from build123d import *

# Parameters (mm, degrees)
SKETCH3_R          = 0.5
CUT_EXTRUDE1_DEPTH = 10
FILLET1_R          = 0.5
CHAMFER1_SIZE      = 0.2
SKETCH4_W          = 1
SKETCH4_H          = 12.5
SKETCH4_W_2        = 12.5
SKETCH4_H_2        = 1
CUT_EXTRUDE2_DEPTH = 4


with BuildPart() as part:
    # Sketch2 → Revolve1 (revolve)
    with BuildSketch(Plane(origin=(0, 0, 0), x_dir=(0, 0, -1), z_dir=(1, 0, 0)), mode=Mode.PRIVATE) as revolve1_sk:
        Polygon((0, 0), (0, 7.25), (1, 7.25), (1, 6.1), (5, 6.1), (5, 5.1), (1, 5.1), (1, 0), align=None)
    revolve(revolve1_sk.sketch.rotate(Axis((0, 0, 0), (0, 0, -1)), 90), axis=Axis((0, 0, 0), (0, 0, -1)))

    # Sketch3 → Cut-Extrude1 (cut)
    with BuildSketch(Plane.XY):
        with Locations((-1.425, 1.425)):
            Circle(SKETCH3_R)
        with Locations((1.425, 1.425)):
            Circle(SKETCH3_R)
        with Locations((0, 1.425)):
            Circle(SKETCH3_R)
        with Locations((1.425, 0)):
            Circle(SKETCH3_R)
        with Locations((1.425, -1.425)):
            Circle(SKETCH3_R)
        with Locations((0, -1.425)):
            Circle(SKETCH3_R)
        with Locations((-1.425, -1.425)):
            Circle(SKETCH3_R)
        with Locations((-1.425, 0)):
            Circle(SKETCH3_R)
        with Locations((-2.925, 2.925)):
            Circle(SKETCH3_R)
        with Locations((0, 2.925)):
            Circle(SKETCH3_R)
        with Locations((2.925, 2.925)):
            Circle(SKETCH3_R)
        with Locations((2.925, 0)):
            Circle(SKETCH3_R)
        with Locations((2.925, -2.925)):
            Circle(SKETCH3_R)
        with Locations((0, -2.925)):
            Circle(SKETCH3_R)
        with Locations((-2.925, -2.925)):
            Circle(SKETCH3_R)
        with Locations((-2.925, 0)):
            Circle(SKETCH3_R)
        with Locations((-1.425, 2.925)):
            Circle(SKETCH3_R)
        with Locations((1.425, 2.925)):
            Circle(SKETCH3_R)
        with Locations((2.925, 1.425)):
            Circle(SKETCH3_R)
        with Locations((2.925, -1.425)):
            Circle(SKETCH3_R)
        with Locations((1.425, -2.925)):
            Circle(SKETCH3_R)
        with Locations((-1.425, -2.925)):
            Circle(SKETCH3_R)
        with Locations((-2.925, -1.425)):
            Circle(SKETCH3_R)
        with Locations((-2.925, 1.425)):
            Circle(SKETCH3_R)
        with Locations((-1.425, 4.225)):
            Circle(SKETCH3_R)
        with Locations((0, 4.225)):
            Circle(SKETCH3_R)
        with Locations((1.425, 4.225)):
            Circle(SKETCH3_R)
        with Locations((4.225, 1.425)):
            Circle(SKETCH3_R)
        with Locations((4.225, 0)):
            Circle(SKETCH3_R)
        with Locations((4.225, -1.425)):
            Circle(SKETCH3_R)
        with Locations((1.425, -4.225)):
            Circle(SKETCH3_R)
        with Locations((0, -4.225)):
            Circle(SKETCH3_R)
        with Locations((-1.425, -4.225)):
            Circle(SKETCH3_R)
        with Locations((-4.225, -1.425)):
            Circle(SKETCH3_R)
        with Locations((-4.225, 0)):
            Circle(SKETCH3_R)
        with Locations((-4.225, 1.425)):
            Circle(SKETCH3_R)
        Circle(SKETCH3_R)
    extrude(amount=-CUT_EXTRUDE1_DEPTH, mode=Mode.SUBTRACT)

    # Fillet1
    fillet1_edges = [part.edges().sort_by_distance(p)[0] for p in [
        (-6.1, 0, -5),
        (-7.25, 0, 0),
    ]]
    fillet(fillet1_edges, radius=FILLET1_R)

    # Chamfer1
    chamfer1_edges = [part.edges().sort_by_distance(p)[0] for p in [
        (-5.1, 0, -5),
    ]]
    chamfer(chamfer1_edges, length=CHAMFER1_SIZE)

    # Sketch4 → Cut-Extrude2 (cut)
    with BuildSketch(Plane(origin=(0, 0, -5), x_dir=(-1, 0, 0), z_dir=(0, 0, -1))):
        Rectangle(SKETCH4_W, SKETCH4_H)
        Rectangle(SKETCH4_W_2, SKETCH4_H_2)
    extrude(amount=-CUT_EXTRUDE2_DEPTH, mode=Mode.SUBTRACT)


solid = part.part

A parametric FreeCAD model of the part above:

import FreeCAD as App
import Part
import Sketcher
from FreeCAD import Vector


def edges_at(feature, points):
    """Names of the edges that pass closest to the given points."""
    edges = feature.Shape.Edges
    near = lambda p: min(range(len(edges)), key=lambda i: edges[i].distToShape(Part.Vertex(*p))[0])
    return sorted({f"Edge{near(p) + 1}" for p in points})


def add_polygon(sketch, points):
    """Adds a closed chain of lines whose ends are joined by coincident constraints."""
    first, n = sketch.GeometryCount, len(points)
    for a, b in zip(points, points[1:] + points[:1]):
        sketch.addGeometry(Part.LineSegment(App.Vector(*a, 0), App.Vector(*b, 0)), False)
    for i in range(n):
        sketch.addConstraint(Sketcher.Constraint("Coincident", first + i, 2, first + (i + 1) % n, 1))

doc = App.newDocument("Part")
params = doc.addObject("Spreadsheet::Sheet", "Params")
for row, (alias, value) in enumerate([
    ("sketch1_width", "1 mm"),
    ("sketch1_height", "4 mm"),
    ("sketch1_width2", "5.1 mm"),
    ("sketch1_width3", "7.25 mm"),
    ("revolution_angle", "360 deg"),
    ("sketch2_diameter", "1 mm"),
    ("pocket1_length", "10 mm"),
    ("fillet_radius", "0.5 mm"),
    ("chamfer_size", "0.2 mm"),
    ("sketch3_width", "1 mm"),
    ("sketch3_width2", "5.75 mm"),
    ("pocket2_length", "4 mm"),
], start=1):
    params.set(f"A{row}", alias)
    params.set(f"B{row}", "=" + value)
    params.setAlias(f"B{row}", alias)

body = doc.addObject("PartDesign::Body", "Body")

sketch1 = doc.addObject("Sketcher::SketchObject", "Sketch")
body.addObject(sketch1)
sketch1.AttachmentSupport = (doc.YZ_Plane, [""])
sketch1.MapMode = "FlatFace"
add_polygon(sketch1, [(7.25, 0), (0, 0), (0, -1), (5.1, -1), (5.1, -5), (6.1, -5), (6.1, -1), (7.25, -1)])
sketch1.addConstraint([
    Sketcher.Constraint("Horizontal", 0),
    Sketcher.Constraint("Vertical", 1),
    Sketcher.Constraint("Horizontal", 2),
    Sketcher.Constraint("Vertical", 3),
    Sketcher.Constraint("Horizontal", 4),
    Sketcher.Constraint("Vertical", 5),
    Sketcher.Constraint("Horizontal", 6),
    Sketcher.Constraint("Vertical", 7),
    Sketcher.Constraint("Coincident", 0, 2, -1, 1),
    Sketcher.Constraint("Horizontal", 2, 2, 5, 2),
    Sketcher.Constraint("Equal", 4, 1),
    Sketcher.Constraint("DistanceX", 4, 1, 4, 2, 1.0),
    Sketcher.Constraint("DistanceY", 3, 2, 3, 1, 4.0),
    Sketcher.Constraint("DistanceX", 2, 1, 2, 2, 5.1),
    Sketcher.Constraint("DistanceX", 0, 2, 0, 1, 7.25),
])
sketch1.setExpression("Constraints[19]", "Params.sketch1_width")
sketch1.setExpression("Constraints[20]", "Params.sketch1_height")
sketch1.setExpression("Constraints[21]", "Params.sketch1_width2")
sketch1.setExpression("Constraints[22]", "Params.sketch1_width3")
revolution = doc.addObject("PartDesign::Revolution", "Revolution")
body.addObject(revolution)
revolution.Profile = sketch1
revolution.ReferenceAxis = (sketch1, ["V_Axis"])
revolution.setExpression("Angle", "Params.revolution_angle")

sketch2 = doc.addObject("Sketcher::SketchObject", "Sketch001")
body.addObject(sketch2)
sketch2.AttachmentSupport = (doc.XY_Plane, [""])
sketch2.MapMode = "FlatFace"
sketch2.addGeometry([
    Part.Circle(Vector(-1.425, 1.425, 0), Vector(0, 0, 1), 0.5),
    Part.Circle(Vector(1.425, 1.425, 0), Vector(0, 0, 1), 0.5),
    Part.Circle(Vector(0, 1.425, 0), Vector(0, 0, 1), 0.5),
    Part.Circle(Vector(1.425, 0, 0), Vector(0, 0, 1), 0.5),
    Part.Circle(Vector(1.425, -1.425, 0), Vector(0, 0, 1), 0.5),
    Part.Circle(Vector(0, -1.425, 0), Vector(0, 0, 1), 0.5),
    Part.Circle(Vector(-1.425, -1.425, 0), Vector(0, 0, 1), 0.5),
    Part.Circle(Vector(-1.425, 0, 0), Vector(0, 0, 1), 0.5),
    Part.Circle(Vector(-2.925, 2.925, 0), Vector(0, 0, 1), 0.5),
    Part.Circle(Vector(0, 2.925, 0), Vector(0, 0, 1), 0.5),
    Part.Circle(Vector(2.925, 2.925, 0), Vector(0, 0, 1), 0.5),
    Part.Circle(Vector(2.925, 0, 0), Vector(0, 0, 1), 0.5),
    Part.Circle(Vector(2.925, -2.925, 0), Vector(0, 0, 1), 0.5),
    Part.Circle(Vector(0, -2.925, 0), Vector(0, 0, 1), 0.5),
    Part.Circle(Vector(-2.925, -2.925, 0), Vector(0, 0, 1), 0.5),
    Part.Circle(Vector(-2.925, 0, 0), Vector(0, 0, 1), 0.5),
    Part.Circle(Vector(-1.425, 2.925, 0), Vector(0, 0, 1), 0.5),
    Part.Circle(Vector(1.425, 2.925, 0), Vector(0, 0, 1), 0.5),
    Part.Circle(Vector(2.925, 1.425, 0), Vector(0, 0, 1), 0.5),
    Part.Circle(Vector(2.925, -1.425, 0), Vector(0, 0, 1), 0.5),
    Part.Circle(Vector(1.425, -2.925, 0), Vector(0, 0, 1), 0.5),
    Part.Circle(Vector(-1.425, -2.925, 0), Vector(0, 0, 1), 0.5),
    Part.Circle(Vector(-2.925, -1.425, 0), Vector(0, 0, 1), 0.5),
    Part.Circle(Vector(-2.925, 1.425, 0), Vector(0, 0, 1), 0.5),
    Part.Circle(Vector(-1.425, 4.225, 0), Vector(0, 0, 1), 0.5),
    Part.Circle(Vector(0, 4.225, 0), Vector(0, 0, 1), 0.5),
    Part.Circle(Vector(1.425, 4.225, 0), Vector(0, 0, 1), 0.5),
    Part.Circle(Vector(4.225, 1.425, 0), Vector(0, 0, 1), 0.5),
    Part.Circle(Vector(4.225, 0, 0), Vector(0, 0, 1), 0.5),
    Part.Circle(Vector(4.225, -1.425, 0), Vector(0, 0, 1), 0.5),
    Part.Circle(Vector(1.425, -4.225, 0), Vector(0, 0, 1), 0.5),
    Part.Circle(Vector(0, -4.225, 0), Vector(0, 0, 1), 0.5),
    Part.Circle(Vector(-1.425, -4.225, 0), Vector(0, 0, 1), 0.5),
    Part.Circle(Vector(-4.225, -1.425, 0), Vector(0, 0, 1), 0.5),
    Part.Circle(Vector(-4.225, 0, 0), Vector(0, 0, 1), 0.5),
    Part.Circle(Vector(-4.225, 1.425, 0), Vector(0, 0, 1), 0.5),
    Part.Circle(Vector(0, 0, 0), Vector(0, 0, 1), 0.5),
], False)
sketch2.addConstraint([
    Sketcher.Constraint("Coincident", 36, 3, -1, 1),
    Sketcher.Constraint("Equal", 0, 1),
    Sketcher.Constraint("Equal", 1, 2),
    Sketcher.Constraint("Equal", 2, 3),
    Sketcher.Constraint("Equal", 3, 4),
    Sketcher.Constraint("Equal", 4, 5),
    Sketcher.Constraint("Equal", 5, 6),
    Sketcher.Constraint("Equal", 6, 7),
    Sketcher.Constraint("Equal", 7, 8),
    Sketcher.Constraint("Equal", 8, 9),
    Sketcher.Constraint("Equal", 9, 10),
    Sketcher.Constraint("Equal", 10, 11),
    Sketcher.Constraint("Equal", 11, 12),
    Sketcher.Constraint("Equal", 12, 13),
    Sketcher.Constraint("Equal", 13, 14),
    Sketcher.Constraint("Equal", 14, 15),
    Sketcher.Constraint("Equal", 15, 16),
    Sketcher.Constraint("Equal", 16, 17),
    Sketcher.Constraint("Equal", 17, 18),
    Sketcher.Constraint("Equal", 18, 19),
    Sketcher.Constraint("Equal", 19, 20),
    Sketcher.Constraint("Equal", 20, 21),
    Sketcher.Constraint("Equal", 21, 22),
    Sketcher.Constraint("Equal", 22, 23),
    Sketcher.Constraint("Equal", 23, 24),
    Sketcher.Constraint("Equal", 24, 25),
    Sketcher.Constraint("Equal", 25, 26),
    Sketcher.Constraint("Equal", 26, 27),
    Sketcher.Constraint("Equal", 27, 28),
    Sketcher.Constraint("Equal", 28, 29),
    Sketcher.Constraint("Equal", 29, 30),
    Sketcher.Constraint("Equal", 30, 31),
    Sketcher.Constraint("Equal", 31, 32),
    Sketcher.Constraint("Equal", 32, 33),
    Sketcher.Constraint("Equal", 33, 34),
    Sketcher.Constraint("Equal", 34, 35),
    Sketcher.Constraint("Equal", 35, 36),
    Sketcher.Constraint("Symmetric", 0, 3, 4, 3, -1, 1),
    Sketcher.Constraint("Symmetric", 2, 3, 5, 3, -1, 1),
    Sketcher.Constraint("Symmetric", 1, 3, 6, 3, -1, 1),
    Sketcher.Constraint("Symmetric", 3, 3, 7, 3, -1, 1),
    Sketcher.Constraint("Symmetric", 8, 3, 12, 3, -1, 1),
    Sketcher.Constraint("Symmetric", 9, 3, 13, 3, -1, 1),
    Sketcher.Constraint("Symmetric", 10, 3, 14, 3, -1, 1),
    Sketcher.Constraint("Symmetric", 11, 3, 15, 3, -1, 1),
    Sketcher.Constraint("Symmetric", 16, 3, 20, 3, -1, 1),
    Sketcher.Constraint("Symmetric", 17, 3, 21, 3, -1, 1),
    Sketcher.Constraint("Symmetric", 18, 3, 22, 3, -1, 1),
    Sketcher.Constraint("Symmetric", 19, 3, 23, 3, -1, 1),
    Sketcher.Constraint("Symmetric", 24, 3, 30, 3, -1, 1),
    Sketcher.Constraint("Symmetric", 25, 3, 31, 3, -1, 1),
    Sketcher.Constraint("Symmetric", 26, 3, 32, 3, -1, 1),
    Sketcher.Constraint("Symmetric", 27, 3, 33, 3, -1, 1),
    Sketcher.Constraint("Symmetric", 28, 3, 34, 3, -1, 1),
    Sketcher.Constraint("Symmetric", 29, 3, 35, 3, -1, 1),
    Sketcher.Constraint("Symmetric", 0, 3, 1, 3, -2),
    Sketcher.Constraint("Symmetric", 8, 3, 10, 3, -2),
    Sketcher.Constraint("Symmetric", 16, 3, 17, 3, -2),
    Sketcher.Constraint("Symmetric", 19, 3, 22, 3, -2),
    Sketcher.Constraint("Symmetric", 24, 3, 26, 3, -2),
    Sketcher.Constraint("Symmetric", 29, 3, 33, 3, -2),
    Sketcher.Constraint("PointOnObject", 2, 3, -2),
    Sketcher.Constraint("PointOnObject", 3, 3, -1),
    Sketcher.Constraint("PointOnObject", 9, 3, -2),
    Sketcher.Constraint("PointOnObject", 11, 3, -1),
    Sketcher.Constraint("PointOnObject", 25, 3, -2),
    Sketcher.Constraint("PointOnObject", 28, 3, -1),
    Sketcher.Constraint("Horizontal", 1, 3, 2, 3),
    Sketcher.Constraint("Horizontal", 8, 3, 9, 3),
    Sketcher.Constraint("Horizontal", 10, 3, 16, 3),
    Sketcher.Constraint("Horizontal", 2, 3, 18, 3),
    Sketcher.Constraint("Horizontal", 24, 3, 25, 3),
    Sketcher.Constraint("Horizontal", 23, 3, 27, 3),
    Sketcher.Constraint("Vertical", 1, 3, 3, 3),
    Sketcher.Constraint("Vertical", 10, 3, 11, 3),
    Sketcher.Constraint("Vertical", 7, 3, 16, 3),
    Sketcher.Constraint("Vertical", 12, 3, 18, 3),
    Sketcher.Constraint("Vertical", 21, 3, 24, 3),
    Sketcher.Constraint("Vertical", 27, 3, 28, 3),
    Sketcher.Constraint("Diameter", 0, 1.0),
    Sketcher.Constraint("DistanceX", 8, 3, 0, 3, 1.5),
    Sketcher.Constraint("DistanceY", 0, 3, 8, 3, 1.5),
    Sketcher.Constraint("DistanceY", 16, 3, 24, 3, 1.3),
    Sketcher.Constraint("DistanceX", 18, 3, 27, 3, 1.3),
    Sketcher.Constraint("DistanceX", 0, 3, 1, 3, 2.85),
    Sketcher.Constraint("DistanceY", 4, 3, 1, 3, 2.85),
])
sketch2.setExpression("Constraints[79]", "Params.sketch2_diameter")
pocket1 = doc.addObject("PartDesign::Pocket", "Pocket")
body.addObject(pocket1)
pocket1.Profile = sketch2
pocket1.setExpression("Length", "Params.pocket1_length")
doc.recompute()

fillet = doc.addObject("PartDesign::Fillet", "Fillet")
body.addObject(fillet)
fillet.Base = (pocket1, edges_at(pocket1, [(-6.1, 0, -5), (-7.25, 0, 0)]))
fillet.setExpression("Radius", "Params.fillet_radius")
doc.recompute()

chamfer = doc.addObject("PartDesign::Chamfer", "Chamfer")
body.addObject(chamfer)
chamfer.Base = (fillet, edges_at(fillet, [(-5.1, 0, -5)]))
chamfer.setExpression("Size", "Params.chamfer_size")

sketch3 = doc.addObject("Sketcher::SketchObject", "Sketch002")
body.addObject(sketch3)
sketch3.AttachmentSupport = (doc.XY_Plane, [""])
sketch3.MapMode = "FlatFace"
sketch3.AttachmentOffset = App.Placement(Vector(0, 0, -5), App.Rotation())
add_polygon(sketch3, [(0.5, -0.5), (0.5, -6.25), (-0.5, -6.25), (-0.5, -0.5), (-6.25, -0.5), (-6.25, 0.5), (-0.5, 0.5), (-0.5, 6.25), (0.5, 6.25), (0.5, 0.5), (6.25, 0.5), (6.25, -0.5)])
sketch3.addConstraint([
    Sketcher.Constraint("Vertical", 0),
    Sketcher.Constraint("Horizontal", 1),
    Sketcher.Constraint("Vertical", 2),
    Sketcher.Constraint("Horizontal", 3),
    Sketcher.Constraint("Vertical", 4),
    Sketcher.Constraint("Horizontal", 5),
    Sketcher.Constraint("Vertical", 6),
    Sketcher.Constraint("Horizontal", 7),
    Sketcher.Constraint("Vertical", 8),
    Sketcher.Constraint("Horizontal", 9),
    Sketcher.Constraint("Vertical", 10),
    Sketcher.Constraint("Horizontal", 11),
    Sketcher.Constraint("Symmetric", 0, 2, 6, 2, -1, 1),
    Sketcher.Constraint("Symmetric", 2, 2, 8, 2, -1, 1),
    Sketcher.Constraint("Symmetric", 4, 2, 10, 2, -1, 1),
    Sketcher.Constraint("Symmetric", 5, 2, 8, 2, -2),
    Sketcher.Constraint("Equal", 11, 0),
    Sketcher.Constraint("Equal", 7, 4),
    Sketcher.Constraint("DistanceX", 1, 2, 1, 1, 1.0),
    Sketcher.Constraint("DistanceX", 3, 2, 3, 1, 5.75),
])
sketch3.setExpression("Constraints[30]", "Params.sketch3_width")
sketch3.setExpression("Constraints[31]", "Params.sketch3_width2")
pocket2 = doc.addObject("PartDesign::Pocket", "Pocket001")
body.addObject(pocket2)
pocket2.Profile = sketch3
pocket2.setExpression("Length", "Params.pocket2_length")
pocket2.Reversed = True

doc.recompute()
